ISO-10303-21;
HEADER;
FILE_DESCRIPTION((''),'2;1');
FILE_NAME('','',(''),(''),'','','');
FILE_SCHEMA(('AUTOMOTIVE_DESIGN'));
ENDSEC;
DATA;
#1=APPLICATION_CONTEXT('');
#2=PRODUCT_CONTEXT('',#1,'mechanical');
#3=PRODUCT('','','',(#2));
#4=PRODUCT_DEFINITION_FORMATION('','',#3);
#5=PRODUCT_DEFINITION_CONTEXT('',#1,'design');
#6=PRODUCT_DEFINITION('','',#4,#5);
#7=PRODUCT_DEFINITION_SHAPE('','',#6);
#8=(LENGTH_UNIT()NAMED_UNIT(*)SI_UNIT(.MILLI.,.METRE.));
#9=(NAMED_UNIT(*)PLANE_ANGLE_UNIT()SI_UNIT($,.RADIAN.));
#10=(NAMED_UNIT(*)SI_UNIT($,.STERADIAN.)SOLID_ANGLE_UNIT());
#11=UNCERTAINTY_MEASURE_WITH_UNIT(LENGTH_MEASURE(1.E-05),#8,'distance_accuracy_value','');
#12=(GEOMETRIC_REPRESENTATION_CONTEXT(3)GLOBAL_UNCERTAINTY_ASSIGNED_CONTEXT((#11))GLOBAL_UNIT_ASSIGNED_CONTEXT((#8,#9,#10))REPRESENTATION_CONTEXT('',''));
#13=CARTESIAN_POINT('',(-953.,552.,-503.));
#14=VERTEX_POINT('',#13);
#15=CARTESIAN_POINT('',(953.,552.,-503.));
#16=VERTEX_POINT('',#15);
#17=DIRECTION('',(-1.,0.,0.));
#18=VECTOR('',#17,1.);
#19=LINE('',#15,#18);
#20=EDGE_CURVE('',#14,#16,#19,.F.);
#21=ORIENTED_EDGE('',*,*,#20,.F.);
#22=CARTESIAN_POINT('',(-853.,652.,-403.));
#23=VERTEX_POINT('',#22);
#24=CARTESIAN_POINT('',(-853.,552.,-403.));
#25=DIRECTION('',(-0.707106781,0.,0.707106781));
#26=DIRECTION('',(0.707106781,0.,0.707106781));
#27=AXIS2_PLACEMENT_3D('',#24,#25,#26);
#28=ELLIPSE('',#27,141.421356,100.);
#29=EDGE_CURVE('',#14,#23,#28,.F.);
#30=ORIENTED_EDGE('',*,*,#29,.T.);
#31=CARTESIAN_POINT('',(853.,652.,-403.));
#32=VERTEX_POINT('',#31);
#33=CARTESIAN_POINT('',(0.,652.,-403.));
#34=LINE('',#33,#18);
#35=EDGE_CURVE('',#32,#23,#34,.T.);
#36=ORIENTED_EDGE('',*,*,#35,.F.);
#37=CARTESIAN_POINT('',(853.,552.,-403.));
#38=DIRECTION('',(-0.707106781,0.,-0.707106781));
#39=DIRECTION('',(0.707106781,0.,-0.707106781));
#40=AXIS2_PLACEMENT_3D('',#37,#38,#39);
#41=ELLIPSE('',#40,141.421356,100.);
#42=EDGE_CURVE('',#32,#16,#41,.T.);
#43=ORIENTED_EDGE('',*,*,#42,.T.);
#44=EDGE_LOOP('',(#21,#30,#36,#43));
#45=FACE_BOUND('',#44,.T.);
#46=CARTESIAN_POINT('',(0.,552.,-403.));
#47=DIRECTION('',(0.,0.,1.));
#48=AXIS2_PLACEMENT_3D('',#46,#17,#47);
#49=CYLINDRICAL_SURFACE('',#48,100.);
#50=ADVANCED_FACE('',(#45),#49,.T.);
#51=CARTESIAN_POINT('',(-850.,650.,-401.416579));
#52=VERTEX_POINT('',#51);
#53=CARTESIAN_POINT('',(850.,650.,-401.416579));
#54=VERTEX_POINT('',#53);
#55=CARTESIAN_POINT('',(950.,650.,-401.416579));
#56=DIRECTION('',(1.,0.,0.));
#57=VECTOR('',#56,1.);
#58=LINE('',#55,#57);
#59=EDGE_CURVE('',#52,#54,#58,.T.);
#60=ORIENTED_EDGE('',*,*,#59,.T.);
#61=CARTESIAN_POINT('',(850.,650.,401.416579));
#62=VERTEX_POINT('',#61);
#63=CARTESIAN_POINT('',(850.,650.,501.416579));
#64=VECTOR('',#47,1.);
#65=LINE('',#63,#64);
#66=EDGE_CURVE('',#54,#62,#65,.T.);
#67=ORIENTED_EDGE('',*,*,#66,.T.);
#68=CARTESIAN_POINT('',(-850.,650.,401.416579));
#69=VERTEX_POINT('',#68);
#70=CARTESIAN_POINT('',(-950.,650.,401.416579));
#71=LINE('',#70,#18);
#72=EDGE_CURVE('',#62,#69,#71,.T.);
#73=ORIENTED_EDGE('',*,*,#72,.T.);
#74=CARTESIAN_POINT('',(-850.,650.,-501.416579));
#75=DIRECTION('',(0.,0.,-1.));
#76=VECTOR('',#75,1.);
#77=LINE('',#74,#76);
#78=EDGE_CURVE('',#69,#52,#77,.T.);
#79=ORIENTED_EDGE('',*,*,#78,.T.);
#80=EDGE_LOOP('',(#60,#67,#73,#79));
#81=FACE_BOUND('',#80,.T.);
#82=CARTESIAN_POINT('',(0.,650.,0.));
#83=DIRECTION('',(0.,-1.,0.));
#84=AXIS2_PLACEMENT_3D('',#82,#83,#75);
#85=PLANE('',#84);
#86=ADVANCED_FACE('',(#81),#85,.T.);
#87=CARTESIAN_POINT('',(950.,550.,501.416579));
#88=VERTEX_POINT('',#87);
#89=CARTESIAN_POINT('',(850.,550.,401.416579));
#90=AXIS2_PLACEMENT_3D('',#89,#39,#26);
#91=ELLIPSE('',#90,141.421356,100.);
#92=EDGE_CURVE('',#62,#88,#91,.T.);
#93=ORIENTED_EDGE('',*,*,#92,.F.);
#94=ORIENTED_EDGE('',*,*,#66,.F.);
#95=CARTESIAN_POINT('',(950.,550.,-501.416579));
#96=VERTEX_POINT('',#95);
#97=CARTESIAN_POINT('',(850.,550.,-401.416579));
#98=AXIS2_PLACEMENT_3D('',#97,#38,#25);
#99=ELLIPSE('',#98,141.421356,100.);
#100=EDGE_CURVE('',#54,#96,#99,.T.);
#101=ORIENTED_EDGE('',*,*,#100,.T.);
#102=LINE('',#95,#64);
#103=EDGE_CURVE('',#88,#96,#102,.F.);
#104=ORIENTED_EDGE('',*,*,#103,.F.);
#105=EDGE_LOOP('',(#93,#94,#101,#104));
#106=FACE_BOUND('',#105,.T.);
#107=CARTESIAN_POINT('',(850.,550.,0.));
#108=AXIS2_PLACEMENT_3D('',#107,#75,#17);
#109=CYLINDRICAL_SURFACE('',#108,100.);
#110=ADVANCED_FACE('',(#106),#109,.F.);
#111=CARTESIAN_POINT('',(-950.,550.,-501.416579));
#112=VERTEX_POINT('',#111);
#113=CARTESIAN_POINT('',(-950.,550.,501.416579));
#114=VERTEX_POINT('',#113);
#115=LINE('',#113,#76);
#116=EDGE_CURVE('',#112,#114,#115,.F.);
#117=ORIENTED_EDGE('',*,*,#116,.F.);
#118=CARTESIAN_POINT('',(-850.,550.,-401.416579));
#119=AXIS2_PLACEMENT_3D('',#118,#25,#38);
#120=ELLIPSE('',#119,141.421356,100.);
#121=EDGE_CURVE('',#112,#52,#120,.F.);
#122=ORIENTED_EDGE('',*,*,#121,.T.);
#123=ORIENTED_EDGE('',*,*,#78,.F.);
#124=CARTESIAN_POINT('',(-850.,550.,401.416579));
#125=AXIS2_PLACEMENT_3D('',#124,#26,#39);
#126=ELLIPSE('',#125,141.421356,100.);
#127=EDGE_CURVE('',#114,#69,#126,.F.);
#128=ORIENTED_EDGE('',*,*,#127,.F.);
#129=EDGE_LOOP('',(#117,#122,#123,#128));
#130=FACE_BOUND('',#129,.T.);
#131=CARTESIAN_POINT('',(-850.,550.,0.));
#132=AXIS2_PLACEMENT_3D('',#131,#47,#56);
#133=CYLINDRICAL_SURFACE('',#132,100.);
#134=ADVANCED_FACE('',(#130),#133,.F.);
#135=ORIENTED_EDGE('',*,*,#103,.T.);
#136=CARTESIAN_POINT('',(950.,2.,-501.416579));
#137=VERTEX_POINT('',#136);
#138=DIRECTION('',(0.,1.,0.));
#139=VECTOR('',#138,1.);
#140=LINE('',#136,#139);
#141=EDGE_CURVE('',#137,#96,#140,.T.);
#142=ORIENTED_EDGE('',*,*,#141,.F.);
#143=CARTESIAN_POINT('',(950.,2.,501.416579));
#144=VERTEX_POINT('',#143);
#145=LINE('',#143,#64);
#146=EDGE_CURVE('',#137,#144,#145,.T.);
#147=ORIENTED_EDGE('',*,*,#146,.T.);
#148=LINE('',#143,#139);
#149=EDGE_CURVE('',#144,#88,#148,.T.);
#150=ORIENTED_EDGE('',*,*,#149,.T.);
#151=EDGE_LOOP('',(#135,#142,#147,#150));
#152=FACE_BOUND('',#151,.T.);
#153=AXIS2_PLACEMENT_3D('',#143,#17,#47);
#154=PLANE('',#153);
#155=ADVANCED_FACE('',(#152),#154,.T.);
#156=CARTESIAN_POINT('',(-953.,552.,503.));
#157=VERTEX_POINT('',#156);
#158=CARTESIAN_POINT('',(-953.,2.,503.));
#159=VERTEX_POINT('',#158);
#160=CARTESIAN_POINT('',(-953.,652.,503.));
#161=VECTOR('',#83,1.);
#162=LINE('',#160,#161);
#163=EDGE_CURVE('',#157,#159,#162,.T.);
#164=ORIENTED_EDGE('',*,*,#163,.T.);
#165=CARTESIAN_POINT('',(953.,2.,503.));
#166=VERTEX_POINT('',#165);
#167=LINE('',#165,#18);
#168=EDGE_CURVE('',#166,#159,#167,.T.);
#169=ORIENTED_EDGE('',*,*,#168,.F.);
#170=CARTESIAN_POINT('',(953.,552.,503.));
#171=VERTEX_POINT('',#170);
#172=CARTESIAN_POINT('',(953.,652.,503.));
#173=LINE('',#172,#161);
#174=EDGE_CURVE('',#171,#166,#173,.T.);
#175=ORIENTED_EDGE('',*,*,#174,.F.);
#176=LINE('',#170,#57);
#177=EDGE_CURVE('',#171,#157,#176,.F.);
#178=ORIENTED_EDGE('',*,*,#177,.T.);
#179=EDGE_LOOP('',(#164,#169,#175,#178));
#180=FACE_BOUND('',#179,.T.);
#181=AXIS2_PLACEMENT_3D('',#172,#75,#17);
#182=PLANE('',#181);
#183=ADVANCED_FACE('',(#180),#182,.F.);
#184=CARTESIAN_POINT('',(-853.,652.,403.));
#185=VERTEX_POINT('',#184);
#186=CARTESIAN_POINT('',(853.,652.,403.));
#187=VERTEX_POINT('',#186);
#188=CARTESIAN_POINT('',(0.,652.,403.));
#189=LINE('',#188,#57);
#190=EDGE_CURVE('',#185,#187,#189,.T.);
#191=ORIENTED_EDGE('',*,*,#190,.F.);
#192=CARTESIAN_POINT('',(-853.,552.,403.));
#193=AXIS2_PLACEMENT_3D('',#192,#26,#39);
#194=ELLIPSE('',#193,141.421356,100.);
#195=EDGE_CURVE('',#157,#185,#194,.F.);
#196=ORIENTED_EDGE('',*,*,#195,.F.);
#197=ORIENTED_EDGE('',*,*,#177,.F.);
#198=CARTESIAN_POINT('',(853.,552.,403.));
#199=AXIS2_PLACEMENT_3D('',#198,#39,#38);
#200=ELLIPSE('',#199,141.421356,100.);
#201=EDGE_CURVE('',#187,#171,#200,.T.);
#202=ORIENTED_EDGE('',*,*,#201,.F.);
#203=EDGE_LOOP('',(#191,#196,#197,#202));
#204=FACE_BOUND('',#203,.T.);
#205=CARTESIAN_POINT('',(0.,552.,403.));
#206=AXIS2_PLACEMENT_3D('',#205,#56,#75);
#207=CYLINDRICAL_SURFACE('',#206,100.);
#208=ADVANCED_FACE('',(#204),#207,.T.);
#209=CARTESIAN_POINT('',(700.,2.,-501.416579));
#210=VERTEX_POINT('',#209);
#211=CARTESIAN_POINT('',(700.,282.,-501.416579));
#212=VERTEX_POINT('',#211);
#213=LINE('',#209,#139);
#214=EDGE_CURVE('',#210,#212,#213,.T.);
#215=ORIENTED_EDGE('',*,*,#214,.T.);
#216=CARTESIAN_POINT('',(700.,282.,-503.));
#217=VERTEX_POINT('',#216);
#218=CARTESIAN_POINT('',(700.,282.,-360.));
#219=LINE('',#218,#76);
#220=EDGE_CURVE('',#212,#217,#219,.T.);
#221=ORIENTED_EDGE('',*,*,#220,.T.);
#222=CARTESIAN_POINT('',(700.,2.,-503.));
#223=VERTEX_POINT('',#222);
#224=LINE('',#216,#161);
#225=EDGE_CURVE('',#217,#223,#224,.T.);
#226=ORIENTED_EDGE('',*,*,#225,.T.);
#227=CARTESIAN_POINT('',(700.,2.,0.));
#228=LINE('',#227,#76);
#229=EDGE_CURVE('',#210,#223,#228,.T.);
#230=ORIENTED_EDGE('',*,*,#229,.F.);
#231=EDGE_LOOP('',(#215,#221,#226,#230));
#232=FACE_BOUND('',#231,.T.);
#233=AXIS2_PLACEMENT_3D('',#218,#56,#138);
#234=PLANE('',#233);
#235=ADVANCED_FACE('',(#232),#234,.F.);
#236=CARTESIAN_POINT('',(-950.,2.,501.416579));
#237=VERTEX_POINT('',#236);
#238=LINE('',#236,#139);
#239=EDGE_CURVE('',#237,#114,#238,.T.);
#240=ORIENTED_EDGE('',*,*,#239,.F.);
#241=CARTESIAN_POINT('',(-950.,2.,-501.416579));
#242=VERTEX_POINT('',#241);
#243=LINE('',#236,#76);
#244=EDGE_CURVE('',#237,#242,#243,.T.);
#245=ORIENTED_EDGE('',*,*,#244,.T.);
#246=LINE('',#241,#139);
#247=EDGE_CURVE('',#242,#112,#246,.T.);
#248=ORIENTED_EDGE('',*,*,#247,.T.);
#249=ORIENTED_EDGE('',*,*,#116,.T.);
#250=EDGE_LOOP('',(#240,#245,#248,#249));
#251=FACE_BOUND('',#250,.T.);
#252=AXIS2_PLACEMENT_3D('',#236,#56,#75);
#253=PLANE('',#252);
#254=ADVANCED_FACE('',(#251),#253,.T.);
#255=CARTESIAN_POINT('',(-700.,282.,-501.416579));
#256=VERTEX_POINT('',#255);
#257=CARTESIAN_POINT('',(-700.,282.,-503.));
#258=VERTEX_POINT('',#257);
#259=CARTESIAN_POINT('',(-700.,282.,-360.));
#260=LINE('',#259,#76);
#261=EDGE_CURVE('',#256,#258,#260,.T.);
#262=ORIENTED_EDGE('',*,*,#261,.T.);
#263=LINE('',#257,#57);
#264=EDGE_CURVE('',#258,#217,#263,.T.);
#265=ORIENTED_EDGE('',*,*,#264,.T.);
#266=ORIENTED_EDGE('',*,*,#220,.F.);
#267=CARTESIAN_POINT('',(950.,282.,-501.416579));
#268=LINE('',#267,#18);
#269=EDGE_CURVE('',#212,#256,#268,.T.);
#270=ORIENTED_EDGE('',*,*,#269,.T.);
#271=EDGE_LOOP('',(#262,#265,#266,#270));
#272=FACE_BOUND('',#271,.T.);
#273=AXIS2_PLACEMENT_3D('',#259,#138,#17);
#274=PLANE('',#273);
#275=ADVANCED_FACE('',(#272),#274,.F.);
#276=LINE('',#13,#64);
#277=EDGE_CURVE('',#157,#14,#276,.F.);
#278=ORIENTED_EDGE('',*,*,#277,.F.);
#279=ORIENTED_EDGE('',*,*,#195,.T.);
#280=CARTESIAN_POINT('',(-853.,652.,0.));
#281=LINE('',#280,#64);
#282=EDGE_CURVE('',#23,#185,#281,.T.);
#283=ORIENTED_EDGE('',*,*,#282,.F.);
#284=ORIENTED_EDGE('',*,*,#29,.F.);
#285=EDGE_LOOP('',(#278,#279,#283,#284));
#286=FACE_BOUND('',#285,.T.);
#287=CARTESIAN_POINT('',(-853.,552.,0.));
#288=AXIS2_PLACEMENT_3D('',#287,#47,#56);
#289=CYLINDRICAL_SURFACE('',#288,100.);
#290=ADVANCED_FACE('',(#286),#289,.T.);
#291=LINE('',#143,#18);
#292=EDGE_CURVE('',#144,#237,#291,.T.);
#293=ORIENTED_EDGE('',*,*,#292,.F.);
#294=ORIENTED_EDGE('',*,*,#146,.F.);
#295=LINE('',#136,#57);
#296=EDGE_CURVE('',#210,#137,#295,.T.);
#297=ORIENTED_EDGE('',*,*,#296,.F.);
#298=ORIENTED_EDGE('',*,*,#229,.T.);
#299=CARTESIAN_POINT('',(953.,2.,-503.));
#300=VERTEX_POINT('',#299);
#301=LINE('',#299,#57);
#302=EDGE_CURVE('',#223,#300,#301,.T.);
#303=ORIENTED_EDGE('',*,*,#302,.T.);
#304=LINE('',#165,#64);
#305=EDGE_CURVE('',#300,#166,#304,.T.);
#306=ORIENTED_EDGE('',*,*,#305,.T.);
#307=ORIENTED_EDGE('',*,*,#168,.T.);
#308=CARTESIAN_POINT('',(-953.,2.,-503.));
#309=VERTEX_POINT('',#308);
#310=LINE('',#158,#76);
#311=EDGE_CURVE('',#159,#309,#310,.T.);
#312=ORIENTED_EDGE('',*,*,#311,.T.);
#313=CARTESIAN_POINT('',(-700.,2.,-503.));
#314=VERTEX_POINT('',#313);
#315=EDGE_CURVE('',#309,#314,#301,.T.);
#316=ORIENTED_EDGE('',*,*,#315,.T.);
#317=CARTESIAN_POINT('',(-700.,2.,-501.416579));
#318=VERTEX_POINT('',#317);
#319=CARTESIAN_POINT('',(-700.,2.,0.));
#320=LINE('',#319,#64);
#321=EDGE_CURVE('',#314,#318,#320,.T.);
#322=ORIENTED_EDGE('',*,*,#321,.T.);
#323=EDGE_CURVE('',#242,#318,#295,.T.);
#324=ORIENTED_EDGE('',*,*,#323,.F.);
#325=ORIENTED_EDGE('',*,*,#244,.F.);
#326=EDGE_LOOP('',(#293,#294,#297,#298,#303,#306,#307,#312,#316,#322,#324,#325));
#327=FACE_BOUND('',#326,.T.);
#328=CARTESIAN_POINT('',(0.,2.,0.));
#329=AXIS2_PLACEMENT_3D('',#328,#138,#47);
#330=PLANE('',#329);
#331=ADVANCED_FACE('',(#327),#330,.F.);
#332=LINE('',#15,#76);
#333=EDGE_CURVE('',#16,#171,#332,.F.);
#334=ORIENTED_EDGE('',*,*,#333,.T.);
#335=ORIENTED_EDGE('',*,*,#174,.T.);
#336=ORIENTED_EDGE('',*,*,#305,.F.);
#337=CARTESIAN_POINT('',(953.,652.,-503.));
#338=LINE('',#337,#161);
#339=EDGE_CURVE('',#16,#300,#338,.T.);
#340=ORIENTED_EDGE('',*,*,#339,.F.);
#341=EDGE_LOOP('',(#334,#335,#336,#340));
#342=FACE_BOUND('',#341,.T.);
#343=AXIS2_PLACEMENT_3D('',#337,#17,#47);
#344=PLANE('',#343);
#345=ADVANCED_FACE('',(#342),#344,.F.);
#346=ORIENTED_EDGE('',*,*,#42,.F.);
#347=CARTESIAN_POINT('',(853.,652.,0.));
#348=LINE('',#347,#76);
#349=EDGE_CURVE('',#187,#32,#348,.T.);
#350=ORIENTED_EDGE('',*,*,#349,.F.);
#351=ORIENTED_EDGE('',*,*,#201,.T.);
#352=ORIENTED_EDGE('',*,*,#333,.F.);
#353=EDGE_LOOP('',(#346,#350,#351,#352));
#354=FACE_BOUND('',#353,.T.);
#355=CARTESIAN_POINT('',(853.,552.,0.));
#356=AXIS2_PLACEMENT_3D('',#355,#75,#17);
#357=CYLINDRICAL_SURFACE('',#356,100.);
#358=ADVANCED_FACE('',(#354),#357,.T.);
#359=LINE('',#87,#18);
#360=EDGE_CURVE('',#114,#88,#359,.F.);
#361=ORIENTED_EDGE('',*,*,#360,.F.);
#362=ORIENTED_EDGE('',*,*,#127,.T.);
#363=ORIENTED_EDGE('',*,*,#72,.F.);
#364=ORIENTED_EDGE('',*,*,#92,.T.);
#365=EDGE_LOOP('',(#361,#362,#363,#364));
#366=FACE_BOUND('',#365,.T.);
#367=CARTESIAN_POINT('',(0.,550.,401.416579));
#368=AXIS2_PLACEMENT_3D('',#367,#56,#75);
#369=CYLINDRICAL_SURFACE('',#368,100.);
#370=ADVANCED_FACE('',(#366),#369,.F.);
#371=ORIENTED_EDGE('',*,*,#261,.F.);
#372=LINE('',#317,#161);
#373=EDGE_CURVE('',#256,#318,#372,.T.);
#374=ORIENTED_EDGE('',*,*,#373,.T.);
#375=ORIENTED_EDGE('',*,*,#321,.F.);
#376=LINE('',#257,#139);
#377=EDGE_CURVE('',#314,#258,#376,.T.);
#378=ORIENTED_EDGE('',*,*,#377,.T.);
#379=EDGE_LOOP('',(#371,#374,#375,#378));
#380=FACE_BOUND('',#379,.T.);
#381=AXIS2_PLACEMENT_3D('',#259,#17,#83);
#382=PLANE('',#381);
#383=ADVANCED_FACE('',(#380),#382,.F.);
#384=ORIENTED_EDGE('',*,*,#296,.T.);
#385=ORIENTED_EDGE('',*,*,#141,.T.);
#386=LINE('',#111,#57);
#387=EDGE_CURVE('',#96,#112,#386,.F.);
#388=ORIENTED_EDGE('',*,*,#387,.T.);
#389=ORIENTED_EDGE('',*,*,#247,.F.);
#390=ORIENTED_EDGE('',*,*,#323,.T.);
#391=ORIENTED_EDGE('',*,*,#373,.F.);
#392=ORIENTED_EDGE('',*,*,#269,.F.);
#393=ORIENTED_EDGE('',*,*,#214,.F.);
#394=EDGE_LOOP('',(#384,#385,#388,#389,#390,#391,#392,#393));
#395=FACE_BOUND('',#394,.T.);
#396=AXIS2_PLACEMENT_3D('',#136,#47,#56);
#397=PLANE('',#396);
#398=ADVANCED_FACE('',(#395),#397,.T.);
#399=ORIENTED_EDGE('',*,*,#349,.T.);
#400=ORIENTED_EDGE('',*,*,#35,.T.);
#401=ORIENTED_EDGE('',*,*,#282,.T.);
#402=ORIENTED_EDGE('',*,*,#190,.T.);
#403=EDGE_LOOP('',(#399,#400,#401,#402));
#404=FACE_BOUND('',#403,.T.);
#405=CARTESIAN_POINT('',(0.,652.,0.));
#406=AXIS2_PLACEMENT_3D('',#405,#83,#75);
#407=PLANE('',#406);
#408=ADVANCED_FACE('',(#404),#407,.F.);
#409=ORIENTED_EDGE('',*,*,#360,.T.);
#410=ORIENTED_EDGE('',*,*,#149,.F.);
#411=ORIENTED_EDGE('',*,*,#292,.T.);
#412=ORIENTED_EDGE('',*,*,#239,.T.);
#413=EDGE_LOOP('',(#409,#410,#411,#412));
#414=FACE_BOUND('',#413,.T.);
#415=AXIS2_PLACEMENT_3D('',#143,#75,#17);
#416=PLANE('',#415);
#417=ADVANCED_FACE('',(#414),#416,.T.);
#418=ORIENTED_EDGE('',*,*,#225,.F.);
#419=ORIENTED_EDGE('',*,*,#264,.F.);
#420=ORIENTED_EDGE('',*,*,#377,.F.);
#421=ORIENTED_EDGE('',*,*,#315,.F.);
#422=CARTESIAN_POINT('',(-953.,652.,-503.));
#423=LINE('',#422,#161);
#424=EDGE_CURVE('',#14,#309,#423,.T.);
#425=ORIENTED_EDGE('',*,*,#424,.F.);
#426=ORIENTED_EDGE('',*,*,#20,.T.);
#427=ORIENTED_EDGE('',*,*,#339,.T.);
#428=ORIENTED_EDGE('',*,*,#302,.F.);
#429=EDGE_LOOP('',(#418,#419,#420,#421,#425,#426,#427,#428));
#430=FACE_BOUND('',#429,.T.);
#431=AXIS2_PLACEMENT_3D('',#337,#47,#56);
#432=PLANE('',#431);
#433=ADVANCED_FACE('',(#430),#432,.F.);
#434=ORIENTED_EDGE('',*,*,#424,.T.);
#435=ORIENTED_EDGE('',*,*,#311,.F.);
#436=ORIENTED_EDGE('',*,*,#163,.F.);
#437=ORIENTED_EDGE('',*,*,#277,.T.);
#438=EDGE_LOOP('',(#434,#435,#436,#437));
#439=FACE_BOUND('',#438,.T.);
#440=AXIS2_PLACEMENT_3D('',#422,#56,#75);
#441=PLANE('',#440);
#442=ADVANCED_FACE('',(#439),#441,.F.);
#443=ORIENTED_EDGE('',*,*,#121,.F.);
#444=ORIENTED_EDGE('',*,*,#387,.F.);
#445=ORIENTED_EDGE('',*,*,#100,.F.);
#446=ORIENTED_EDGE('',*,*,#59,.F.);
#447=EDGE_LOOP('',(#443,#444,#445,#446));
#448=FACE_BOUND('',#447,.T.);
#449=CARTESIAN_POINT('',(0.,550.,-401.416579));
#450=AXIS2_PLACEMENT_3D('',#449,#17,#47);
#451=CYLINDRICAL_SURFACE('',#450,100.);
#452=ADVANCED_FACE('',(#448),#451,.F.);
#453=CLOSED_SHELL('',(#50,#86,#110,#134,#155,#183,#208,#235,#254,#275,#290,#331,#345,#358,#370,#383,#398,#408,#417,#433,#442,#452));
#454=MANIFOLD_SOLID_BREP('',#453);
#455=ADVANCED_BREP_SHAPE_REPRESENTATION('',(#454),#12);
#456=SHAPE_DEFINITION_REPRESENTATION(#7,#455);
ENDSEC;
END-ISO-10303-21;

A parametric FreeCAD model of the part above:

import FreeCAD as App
import Part
import Sketcher
from FreeCAD import Vector


def edges_at(feature, points):
    """Names of the edges that pass closest to the given points."""
    edges = feature.Shape.Edges
    near = lambda p: min(range(len(edges)), key=lambda i: edges[i].distToShape(Part.Vertex(*p))[0])
    return sorted({f"Edge{near(p) + 1}" for p in points})


def add_polygon(sketch, points):
    """Adds a closed chain of lines whose ends are joined by coincident constraints."""
    first, n = sketch.GeometryCount, len(points)
    for a, b in zip(points, points[1:] + points[:1]):
        sketch.addGeometry(Part.LineSegment(App.Vector(*a, 0), App.Vector(*b, 0)), False)
    for i in range(n):
        sketch.addConstraint(Sketcher.Constraint("Coincident", first + i, 2, first + (i + 1) % n, 1))

doc = App.newDocument("Part")
params = doc.addObject("Spreadsheet::Sheet", "Params")
for row, (alias, value) in enumerate([
    ("sketch1_width", "1906 mm"),
    ("sketch1_height", "1006 mm"),
    ("pad1_length", "2 mm"),
    ("sketch2_width", "1906 mm"),
    ("sketch2_width2", "1900 mm"),
    ("sketch2_height", "1006 mm"),
    ("pad2_length", "648 mm"),
    ("fillet_radius", "100 mm"),
    ("sketch3_width", "1400 mm"),
    ("sketch3_height", "560 mm"),
    ("pocket1_length", "143 mm"),
], start=1):
    params.set(f"A{row}", alias)
    params.set(f"B{row}", "=" + value)
    params.setAlias(f"B{row}", alias)

body = doc.addObject("PartDesign::Body", "Body")

# Sketch on XZ plane
sketch1 = body.newObject("Sketcher::SketchObject", "Sketch")
sketch1.AttachmentSupport = (doc.getObject("XZ_Plane"), [""])
sketch1.MapMode = "FlatFace"
sketch1.AttachmentOffset = App.Placement(Vector(0, 0, -650), App.Rotation())
add_polygon(sketch1, [(-953, -503), (-953, 503), (953, 503), (953, -503)])  # lines 0-3
sketch1.addConstraint([
    Sketcher.Constraint("Vertical", 0),
    Sketcher.Constraint("Horizontal", 1),
    Sketcher.Constraint("Vertical", 2),
    Sketcher.Constraint("Horizontal", 3),
    Sketcher.Constraint("Symmetric", 0, 2, 2, 2, -1, 1),
    Sketcher.Constraint("DistanceX", 1, 1, 1, 2, 1906.0),
    Sketcher.Constraint("DistanceY", 0, 1, 0, 2, 1006.0),
])
sketch1.setExpression("Constraints[9]", "Params.sketch1_width")
sketch1.setExpression("Constraints[10]", "Params.sketch1_height")
pad1 = body.newObject("PartDesign::Pad", "Pad")
pad1.Profile = sketch1
pad1.setExpression("Length", "Params.pad1_length")
pad1.Reversed = True

# Sketch on XZ plane
sketch2 = body.newObject("Sketcher::SketchObject", "Sketch001")
sketch2.AttachmentSupport = (doc.getObject("XZ_Plane"), [""])
sketch2.MapMode = "FlatFace"
sketch2.AttachmentOffset = App.Placement(Vector(0, 0, -650), App.Rotation())
add_polygon(sketch2, [(-953, 503), (-953, -503), (953, -503), (953, 503)])  # lines 0-3
add_polygon(sketch2, [(950, -501), (-950, -501), (-950, 501), (950, 501)])  # lines 4-7
sketch2.addConstraint([
    Sketcher.Constraint("Vertical", 0),
    Sketcher.Constraint("Horizontal", 1),
    Sketcher.Constraint("Vertical", 2),
    Sketcher.Constraint("Horizontal", 3),
    Sketcher.Constraint("Horizontal", 4),
    Sketcher.Constraint("Vertical", 5),
    Sketcher.Constraint("Horizontal", 6),
    Sketcher.Constraint("Vertical", 7),
    Sketcher.Constraint("Symmetric", 0, 2, 2, 2, -1, 1),
    Sketcher.Constraint("Symmetric", 4, 2, 6, 2, -1, 1),
    Sketcher.Constraint("DistanceX", 1, 1, 1, 2, 1906.0),
    Sketcher.Constraint("DistanceX", 4, 2, 4, 1, 1900.0),
    Sketcher.Constraint("DistanceY", 0, 2, 0, 1, 1006.0),
    Sketcher.Constraint("DistanceY", 5, 1, 5, 2, 1002.833158),
])
sketch2.setExpression("Constraints[18]", "Params.sketch2_width")
sketch2.setExpression("Constraints[19]", "Params.sketch2_width2")
sketch2.setExpression("Constraints[20]", "Params.sketch2_height")
pad2 = body.newObject("PartDesign::Pad", "Pad001")
pad2.Profile = sketch2
pad2.setExpression("Length", "Params.pad2_length")
doc.recompute()

fillet = body.newObject("PartDesign::Fillet", "Fillet")
fillet.Base = (pad2, edges_at(pad2, [
    (953, 652, 0),
    (0, 652, -503),
    (0, 650, 501.417),
    (-950, 650, 0),
    (0, 650, -501.417),
    (950, 650, 0),
    (-953, 652, 0),
    (0, 652, 503),
]))
fillet.setExpression("Radius", "Params.fillet_radius")

# Sketch on XY plane
sketch3 = body.newObject("Sketcher::SketchObject", "Sketch002")
sketch3.AttachmentSupport = (doc.getObject("XY_Plane"), [""])
sketch3.MapMode = "FlatFace"
sketch3.AttachmentOffset = App.Placement(Vector(0, 0, -503), App.Rotation())
add_polygon(sketch3, [(700, 282), (700, -278), (-700, -278), (-700, 282)])  # lines 0-3
sketch3.addConstraint([
    Sketcher.Constraint("Vertical", 0),
    Sketcher.Constraint("Horizontal", 1),
    Sketcher.Constraint("Vertical", 2),
    Sketcher.Constraint("Horizontal", 3),
    Sketcher.Constraint("DistanceX", 1, 2, 1, 1, 1400.0),
    Sketcher.Constraint("DistanceY", 0, 2, 0, 1, 560.0),
    Sketcher.Constraint("DistanceX", -1, 1, 0, 2, 700.0),
    Sketcher.Constraint("DistanceY", 0, 2, -1, 1, 278.0),
])
sketch3.setExpression("Constraints[8]", "Params.sketch3_width")
sketch3.setExpression("Constraints[9]", "Params.sketch3_height")
pocket1 = body.newObject("PartDesign::Pocket", "Pocket")
pocket1.Profile = sketch3
pocket1.setExpression("Length", "Params.pocket1_length")
pocket1.Reversed = True

doc.recompute()
